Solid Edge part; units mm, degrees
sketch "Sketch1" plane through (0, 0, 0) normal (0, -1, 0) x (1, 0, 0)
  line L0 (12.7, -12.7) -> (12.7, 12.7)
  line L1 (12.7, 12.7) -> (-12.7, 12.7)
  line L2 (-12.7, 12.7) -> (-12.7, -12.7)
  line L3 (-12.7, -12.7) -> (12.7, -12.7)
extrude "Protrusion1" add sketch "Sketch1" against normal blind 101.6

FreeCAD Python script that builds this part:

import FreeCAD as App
import Part
import Sketcher
Q = App.Units.Quantity

doc = App.newDocument("Part")
params = doc.addObject("Spreadsheet::Sheet", "Params")
for row, (alias, value) in enumerate([
    ("sketch1_width", "1 in"),
    ("pad1_length", "4 in"),
], start=1):
    params.set(f"A{row}", alias)
    params.set(f"B{row}", "=" + value)
    params.setAlias(f"B{row}", alias)

body = doc.addObject("PartDesign::Body", "Body")

# Sketch on XZ plane
sketch1 = doc.addObject("Sketcher::SketchObject", "Sketch")
body.addObject(sketch1)
sketch1.AttachmentSupport = (doc.XZ_Plane, [""])
sketch1.MapMode = "FlatFace"
sketch1.addGeometry([
    Part.LineSegment(App.Vector(-13, -13, 0), App.Vector(13, -13, 0)),
    Part.LineSegment(App.Vector(13, -13, 0), App.Vector(13, 13, 0)),
    Part.LineSegment(App.Vector(13, 13, 0), App.Vector(-13, 13, 0)),
    Part.LineSegment(App.Vector(-13, 13, 0), App.Vector(-13, -13, 0)),
], False)
sketch1.addConstraint([
    Sketcher.Constraint("Coincident", 0, 2, 1, 1),
    Sketcher.Constraint("Coincident", 1, 2, 2, 1),
    Sketcher.Constraint("Coincident", 2, 2, 3, 1),
    Sketcher.Constraint("Coincident", 3, 2, 0, 1),
    Sketcher.Constraint("Horizontal", 0),
    Sketcher.Constraint("Vertical", 1),
    Sketcher.Constraint("Horizontal", 2),
    Sketcher.Constraint("Vertical", 3),
    Sketcher.Constraint("Symmetric", 0, 2, 2, 2, -1, 1),
    Sketcher.Constraint("Equal", 2, 1),
    Sketcher.Constraint("DistanceX", 0, 1, 0, 2, Q("1 in")),
])
sketch1.setExpression("Constraints[10]", "Params.sketch1_width")
pad1 = doc.addObject("PartDesign::Pad", "Pad")
body.addObject(pad1)
pad1.Profile = sketch1
pad1.setExpression("Length", "Params.pad1_length")
pad1.Reversed = True

doc.recompute()
